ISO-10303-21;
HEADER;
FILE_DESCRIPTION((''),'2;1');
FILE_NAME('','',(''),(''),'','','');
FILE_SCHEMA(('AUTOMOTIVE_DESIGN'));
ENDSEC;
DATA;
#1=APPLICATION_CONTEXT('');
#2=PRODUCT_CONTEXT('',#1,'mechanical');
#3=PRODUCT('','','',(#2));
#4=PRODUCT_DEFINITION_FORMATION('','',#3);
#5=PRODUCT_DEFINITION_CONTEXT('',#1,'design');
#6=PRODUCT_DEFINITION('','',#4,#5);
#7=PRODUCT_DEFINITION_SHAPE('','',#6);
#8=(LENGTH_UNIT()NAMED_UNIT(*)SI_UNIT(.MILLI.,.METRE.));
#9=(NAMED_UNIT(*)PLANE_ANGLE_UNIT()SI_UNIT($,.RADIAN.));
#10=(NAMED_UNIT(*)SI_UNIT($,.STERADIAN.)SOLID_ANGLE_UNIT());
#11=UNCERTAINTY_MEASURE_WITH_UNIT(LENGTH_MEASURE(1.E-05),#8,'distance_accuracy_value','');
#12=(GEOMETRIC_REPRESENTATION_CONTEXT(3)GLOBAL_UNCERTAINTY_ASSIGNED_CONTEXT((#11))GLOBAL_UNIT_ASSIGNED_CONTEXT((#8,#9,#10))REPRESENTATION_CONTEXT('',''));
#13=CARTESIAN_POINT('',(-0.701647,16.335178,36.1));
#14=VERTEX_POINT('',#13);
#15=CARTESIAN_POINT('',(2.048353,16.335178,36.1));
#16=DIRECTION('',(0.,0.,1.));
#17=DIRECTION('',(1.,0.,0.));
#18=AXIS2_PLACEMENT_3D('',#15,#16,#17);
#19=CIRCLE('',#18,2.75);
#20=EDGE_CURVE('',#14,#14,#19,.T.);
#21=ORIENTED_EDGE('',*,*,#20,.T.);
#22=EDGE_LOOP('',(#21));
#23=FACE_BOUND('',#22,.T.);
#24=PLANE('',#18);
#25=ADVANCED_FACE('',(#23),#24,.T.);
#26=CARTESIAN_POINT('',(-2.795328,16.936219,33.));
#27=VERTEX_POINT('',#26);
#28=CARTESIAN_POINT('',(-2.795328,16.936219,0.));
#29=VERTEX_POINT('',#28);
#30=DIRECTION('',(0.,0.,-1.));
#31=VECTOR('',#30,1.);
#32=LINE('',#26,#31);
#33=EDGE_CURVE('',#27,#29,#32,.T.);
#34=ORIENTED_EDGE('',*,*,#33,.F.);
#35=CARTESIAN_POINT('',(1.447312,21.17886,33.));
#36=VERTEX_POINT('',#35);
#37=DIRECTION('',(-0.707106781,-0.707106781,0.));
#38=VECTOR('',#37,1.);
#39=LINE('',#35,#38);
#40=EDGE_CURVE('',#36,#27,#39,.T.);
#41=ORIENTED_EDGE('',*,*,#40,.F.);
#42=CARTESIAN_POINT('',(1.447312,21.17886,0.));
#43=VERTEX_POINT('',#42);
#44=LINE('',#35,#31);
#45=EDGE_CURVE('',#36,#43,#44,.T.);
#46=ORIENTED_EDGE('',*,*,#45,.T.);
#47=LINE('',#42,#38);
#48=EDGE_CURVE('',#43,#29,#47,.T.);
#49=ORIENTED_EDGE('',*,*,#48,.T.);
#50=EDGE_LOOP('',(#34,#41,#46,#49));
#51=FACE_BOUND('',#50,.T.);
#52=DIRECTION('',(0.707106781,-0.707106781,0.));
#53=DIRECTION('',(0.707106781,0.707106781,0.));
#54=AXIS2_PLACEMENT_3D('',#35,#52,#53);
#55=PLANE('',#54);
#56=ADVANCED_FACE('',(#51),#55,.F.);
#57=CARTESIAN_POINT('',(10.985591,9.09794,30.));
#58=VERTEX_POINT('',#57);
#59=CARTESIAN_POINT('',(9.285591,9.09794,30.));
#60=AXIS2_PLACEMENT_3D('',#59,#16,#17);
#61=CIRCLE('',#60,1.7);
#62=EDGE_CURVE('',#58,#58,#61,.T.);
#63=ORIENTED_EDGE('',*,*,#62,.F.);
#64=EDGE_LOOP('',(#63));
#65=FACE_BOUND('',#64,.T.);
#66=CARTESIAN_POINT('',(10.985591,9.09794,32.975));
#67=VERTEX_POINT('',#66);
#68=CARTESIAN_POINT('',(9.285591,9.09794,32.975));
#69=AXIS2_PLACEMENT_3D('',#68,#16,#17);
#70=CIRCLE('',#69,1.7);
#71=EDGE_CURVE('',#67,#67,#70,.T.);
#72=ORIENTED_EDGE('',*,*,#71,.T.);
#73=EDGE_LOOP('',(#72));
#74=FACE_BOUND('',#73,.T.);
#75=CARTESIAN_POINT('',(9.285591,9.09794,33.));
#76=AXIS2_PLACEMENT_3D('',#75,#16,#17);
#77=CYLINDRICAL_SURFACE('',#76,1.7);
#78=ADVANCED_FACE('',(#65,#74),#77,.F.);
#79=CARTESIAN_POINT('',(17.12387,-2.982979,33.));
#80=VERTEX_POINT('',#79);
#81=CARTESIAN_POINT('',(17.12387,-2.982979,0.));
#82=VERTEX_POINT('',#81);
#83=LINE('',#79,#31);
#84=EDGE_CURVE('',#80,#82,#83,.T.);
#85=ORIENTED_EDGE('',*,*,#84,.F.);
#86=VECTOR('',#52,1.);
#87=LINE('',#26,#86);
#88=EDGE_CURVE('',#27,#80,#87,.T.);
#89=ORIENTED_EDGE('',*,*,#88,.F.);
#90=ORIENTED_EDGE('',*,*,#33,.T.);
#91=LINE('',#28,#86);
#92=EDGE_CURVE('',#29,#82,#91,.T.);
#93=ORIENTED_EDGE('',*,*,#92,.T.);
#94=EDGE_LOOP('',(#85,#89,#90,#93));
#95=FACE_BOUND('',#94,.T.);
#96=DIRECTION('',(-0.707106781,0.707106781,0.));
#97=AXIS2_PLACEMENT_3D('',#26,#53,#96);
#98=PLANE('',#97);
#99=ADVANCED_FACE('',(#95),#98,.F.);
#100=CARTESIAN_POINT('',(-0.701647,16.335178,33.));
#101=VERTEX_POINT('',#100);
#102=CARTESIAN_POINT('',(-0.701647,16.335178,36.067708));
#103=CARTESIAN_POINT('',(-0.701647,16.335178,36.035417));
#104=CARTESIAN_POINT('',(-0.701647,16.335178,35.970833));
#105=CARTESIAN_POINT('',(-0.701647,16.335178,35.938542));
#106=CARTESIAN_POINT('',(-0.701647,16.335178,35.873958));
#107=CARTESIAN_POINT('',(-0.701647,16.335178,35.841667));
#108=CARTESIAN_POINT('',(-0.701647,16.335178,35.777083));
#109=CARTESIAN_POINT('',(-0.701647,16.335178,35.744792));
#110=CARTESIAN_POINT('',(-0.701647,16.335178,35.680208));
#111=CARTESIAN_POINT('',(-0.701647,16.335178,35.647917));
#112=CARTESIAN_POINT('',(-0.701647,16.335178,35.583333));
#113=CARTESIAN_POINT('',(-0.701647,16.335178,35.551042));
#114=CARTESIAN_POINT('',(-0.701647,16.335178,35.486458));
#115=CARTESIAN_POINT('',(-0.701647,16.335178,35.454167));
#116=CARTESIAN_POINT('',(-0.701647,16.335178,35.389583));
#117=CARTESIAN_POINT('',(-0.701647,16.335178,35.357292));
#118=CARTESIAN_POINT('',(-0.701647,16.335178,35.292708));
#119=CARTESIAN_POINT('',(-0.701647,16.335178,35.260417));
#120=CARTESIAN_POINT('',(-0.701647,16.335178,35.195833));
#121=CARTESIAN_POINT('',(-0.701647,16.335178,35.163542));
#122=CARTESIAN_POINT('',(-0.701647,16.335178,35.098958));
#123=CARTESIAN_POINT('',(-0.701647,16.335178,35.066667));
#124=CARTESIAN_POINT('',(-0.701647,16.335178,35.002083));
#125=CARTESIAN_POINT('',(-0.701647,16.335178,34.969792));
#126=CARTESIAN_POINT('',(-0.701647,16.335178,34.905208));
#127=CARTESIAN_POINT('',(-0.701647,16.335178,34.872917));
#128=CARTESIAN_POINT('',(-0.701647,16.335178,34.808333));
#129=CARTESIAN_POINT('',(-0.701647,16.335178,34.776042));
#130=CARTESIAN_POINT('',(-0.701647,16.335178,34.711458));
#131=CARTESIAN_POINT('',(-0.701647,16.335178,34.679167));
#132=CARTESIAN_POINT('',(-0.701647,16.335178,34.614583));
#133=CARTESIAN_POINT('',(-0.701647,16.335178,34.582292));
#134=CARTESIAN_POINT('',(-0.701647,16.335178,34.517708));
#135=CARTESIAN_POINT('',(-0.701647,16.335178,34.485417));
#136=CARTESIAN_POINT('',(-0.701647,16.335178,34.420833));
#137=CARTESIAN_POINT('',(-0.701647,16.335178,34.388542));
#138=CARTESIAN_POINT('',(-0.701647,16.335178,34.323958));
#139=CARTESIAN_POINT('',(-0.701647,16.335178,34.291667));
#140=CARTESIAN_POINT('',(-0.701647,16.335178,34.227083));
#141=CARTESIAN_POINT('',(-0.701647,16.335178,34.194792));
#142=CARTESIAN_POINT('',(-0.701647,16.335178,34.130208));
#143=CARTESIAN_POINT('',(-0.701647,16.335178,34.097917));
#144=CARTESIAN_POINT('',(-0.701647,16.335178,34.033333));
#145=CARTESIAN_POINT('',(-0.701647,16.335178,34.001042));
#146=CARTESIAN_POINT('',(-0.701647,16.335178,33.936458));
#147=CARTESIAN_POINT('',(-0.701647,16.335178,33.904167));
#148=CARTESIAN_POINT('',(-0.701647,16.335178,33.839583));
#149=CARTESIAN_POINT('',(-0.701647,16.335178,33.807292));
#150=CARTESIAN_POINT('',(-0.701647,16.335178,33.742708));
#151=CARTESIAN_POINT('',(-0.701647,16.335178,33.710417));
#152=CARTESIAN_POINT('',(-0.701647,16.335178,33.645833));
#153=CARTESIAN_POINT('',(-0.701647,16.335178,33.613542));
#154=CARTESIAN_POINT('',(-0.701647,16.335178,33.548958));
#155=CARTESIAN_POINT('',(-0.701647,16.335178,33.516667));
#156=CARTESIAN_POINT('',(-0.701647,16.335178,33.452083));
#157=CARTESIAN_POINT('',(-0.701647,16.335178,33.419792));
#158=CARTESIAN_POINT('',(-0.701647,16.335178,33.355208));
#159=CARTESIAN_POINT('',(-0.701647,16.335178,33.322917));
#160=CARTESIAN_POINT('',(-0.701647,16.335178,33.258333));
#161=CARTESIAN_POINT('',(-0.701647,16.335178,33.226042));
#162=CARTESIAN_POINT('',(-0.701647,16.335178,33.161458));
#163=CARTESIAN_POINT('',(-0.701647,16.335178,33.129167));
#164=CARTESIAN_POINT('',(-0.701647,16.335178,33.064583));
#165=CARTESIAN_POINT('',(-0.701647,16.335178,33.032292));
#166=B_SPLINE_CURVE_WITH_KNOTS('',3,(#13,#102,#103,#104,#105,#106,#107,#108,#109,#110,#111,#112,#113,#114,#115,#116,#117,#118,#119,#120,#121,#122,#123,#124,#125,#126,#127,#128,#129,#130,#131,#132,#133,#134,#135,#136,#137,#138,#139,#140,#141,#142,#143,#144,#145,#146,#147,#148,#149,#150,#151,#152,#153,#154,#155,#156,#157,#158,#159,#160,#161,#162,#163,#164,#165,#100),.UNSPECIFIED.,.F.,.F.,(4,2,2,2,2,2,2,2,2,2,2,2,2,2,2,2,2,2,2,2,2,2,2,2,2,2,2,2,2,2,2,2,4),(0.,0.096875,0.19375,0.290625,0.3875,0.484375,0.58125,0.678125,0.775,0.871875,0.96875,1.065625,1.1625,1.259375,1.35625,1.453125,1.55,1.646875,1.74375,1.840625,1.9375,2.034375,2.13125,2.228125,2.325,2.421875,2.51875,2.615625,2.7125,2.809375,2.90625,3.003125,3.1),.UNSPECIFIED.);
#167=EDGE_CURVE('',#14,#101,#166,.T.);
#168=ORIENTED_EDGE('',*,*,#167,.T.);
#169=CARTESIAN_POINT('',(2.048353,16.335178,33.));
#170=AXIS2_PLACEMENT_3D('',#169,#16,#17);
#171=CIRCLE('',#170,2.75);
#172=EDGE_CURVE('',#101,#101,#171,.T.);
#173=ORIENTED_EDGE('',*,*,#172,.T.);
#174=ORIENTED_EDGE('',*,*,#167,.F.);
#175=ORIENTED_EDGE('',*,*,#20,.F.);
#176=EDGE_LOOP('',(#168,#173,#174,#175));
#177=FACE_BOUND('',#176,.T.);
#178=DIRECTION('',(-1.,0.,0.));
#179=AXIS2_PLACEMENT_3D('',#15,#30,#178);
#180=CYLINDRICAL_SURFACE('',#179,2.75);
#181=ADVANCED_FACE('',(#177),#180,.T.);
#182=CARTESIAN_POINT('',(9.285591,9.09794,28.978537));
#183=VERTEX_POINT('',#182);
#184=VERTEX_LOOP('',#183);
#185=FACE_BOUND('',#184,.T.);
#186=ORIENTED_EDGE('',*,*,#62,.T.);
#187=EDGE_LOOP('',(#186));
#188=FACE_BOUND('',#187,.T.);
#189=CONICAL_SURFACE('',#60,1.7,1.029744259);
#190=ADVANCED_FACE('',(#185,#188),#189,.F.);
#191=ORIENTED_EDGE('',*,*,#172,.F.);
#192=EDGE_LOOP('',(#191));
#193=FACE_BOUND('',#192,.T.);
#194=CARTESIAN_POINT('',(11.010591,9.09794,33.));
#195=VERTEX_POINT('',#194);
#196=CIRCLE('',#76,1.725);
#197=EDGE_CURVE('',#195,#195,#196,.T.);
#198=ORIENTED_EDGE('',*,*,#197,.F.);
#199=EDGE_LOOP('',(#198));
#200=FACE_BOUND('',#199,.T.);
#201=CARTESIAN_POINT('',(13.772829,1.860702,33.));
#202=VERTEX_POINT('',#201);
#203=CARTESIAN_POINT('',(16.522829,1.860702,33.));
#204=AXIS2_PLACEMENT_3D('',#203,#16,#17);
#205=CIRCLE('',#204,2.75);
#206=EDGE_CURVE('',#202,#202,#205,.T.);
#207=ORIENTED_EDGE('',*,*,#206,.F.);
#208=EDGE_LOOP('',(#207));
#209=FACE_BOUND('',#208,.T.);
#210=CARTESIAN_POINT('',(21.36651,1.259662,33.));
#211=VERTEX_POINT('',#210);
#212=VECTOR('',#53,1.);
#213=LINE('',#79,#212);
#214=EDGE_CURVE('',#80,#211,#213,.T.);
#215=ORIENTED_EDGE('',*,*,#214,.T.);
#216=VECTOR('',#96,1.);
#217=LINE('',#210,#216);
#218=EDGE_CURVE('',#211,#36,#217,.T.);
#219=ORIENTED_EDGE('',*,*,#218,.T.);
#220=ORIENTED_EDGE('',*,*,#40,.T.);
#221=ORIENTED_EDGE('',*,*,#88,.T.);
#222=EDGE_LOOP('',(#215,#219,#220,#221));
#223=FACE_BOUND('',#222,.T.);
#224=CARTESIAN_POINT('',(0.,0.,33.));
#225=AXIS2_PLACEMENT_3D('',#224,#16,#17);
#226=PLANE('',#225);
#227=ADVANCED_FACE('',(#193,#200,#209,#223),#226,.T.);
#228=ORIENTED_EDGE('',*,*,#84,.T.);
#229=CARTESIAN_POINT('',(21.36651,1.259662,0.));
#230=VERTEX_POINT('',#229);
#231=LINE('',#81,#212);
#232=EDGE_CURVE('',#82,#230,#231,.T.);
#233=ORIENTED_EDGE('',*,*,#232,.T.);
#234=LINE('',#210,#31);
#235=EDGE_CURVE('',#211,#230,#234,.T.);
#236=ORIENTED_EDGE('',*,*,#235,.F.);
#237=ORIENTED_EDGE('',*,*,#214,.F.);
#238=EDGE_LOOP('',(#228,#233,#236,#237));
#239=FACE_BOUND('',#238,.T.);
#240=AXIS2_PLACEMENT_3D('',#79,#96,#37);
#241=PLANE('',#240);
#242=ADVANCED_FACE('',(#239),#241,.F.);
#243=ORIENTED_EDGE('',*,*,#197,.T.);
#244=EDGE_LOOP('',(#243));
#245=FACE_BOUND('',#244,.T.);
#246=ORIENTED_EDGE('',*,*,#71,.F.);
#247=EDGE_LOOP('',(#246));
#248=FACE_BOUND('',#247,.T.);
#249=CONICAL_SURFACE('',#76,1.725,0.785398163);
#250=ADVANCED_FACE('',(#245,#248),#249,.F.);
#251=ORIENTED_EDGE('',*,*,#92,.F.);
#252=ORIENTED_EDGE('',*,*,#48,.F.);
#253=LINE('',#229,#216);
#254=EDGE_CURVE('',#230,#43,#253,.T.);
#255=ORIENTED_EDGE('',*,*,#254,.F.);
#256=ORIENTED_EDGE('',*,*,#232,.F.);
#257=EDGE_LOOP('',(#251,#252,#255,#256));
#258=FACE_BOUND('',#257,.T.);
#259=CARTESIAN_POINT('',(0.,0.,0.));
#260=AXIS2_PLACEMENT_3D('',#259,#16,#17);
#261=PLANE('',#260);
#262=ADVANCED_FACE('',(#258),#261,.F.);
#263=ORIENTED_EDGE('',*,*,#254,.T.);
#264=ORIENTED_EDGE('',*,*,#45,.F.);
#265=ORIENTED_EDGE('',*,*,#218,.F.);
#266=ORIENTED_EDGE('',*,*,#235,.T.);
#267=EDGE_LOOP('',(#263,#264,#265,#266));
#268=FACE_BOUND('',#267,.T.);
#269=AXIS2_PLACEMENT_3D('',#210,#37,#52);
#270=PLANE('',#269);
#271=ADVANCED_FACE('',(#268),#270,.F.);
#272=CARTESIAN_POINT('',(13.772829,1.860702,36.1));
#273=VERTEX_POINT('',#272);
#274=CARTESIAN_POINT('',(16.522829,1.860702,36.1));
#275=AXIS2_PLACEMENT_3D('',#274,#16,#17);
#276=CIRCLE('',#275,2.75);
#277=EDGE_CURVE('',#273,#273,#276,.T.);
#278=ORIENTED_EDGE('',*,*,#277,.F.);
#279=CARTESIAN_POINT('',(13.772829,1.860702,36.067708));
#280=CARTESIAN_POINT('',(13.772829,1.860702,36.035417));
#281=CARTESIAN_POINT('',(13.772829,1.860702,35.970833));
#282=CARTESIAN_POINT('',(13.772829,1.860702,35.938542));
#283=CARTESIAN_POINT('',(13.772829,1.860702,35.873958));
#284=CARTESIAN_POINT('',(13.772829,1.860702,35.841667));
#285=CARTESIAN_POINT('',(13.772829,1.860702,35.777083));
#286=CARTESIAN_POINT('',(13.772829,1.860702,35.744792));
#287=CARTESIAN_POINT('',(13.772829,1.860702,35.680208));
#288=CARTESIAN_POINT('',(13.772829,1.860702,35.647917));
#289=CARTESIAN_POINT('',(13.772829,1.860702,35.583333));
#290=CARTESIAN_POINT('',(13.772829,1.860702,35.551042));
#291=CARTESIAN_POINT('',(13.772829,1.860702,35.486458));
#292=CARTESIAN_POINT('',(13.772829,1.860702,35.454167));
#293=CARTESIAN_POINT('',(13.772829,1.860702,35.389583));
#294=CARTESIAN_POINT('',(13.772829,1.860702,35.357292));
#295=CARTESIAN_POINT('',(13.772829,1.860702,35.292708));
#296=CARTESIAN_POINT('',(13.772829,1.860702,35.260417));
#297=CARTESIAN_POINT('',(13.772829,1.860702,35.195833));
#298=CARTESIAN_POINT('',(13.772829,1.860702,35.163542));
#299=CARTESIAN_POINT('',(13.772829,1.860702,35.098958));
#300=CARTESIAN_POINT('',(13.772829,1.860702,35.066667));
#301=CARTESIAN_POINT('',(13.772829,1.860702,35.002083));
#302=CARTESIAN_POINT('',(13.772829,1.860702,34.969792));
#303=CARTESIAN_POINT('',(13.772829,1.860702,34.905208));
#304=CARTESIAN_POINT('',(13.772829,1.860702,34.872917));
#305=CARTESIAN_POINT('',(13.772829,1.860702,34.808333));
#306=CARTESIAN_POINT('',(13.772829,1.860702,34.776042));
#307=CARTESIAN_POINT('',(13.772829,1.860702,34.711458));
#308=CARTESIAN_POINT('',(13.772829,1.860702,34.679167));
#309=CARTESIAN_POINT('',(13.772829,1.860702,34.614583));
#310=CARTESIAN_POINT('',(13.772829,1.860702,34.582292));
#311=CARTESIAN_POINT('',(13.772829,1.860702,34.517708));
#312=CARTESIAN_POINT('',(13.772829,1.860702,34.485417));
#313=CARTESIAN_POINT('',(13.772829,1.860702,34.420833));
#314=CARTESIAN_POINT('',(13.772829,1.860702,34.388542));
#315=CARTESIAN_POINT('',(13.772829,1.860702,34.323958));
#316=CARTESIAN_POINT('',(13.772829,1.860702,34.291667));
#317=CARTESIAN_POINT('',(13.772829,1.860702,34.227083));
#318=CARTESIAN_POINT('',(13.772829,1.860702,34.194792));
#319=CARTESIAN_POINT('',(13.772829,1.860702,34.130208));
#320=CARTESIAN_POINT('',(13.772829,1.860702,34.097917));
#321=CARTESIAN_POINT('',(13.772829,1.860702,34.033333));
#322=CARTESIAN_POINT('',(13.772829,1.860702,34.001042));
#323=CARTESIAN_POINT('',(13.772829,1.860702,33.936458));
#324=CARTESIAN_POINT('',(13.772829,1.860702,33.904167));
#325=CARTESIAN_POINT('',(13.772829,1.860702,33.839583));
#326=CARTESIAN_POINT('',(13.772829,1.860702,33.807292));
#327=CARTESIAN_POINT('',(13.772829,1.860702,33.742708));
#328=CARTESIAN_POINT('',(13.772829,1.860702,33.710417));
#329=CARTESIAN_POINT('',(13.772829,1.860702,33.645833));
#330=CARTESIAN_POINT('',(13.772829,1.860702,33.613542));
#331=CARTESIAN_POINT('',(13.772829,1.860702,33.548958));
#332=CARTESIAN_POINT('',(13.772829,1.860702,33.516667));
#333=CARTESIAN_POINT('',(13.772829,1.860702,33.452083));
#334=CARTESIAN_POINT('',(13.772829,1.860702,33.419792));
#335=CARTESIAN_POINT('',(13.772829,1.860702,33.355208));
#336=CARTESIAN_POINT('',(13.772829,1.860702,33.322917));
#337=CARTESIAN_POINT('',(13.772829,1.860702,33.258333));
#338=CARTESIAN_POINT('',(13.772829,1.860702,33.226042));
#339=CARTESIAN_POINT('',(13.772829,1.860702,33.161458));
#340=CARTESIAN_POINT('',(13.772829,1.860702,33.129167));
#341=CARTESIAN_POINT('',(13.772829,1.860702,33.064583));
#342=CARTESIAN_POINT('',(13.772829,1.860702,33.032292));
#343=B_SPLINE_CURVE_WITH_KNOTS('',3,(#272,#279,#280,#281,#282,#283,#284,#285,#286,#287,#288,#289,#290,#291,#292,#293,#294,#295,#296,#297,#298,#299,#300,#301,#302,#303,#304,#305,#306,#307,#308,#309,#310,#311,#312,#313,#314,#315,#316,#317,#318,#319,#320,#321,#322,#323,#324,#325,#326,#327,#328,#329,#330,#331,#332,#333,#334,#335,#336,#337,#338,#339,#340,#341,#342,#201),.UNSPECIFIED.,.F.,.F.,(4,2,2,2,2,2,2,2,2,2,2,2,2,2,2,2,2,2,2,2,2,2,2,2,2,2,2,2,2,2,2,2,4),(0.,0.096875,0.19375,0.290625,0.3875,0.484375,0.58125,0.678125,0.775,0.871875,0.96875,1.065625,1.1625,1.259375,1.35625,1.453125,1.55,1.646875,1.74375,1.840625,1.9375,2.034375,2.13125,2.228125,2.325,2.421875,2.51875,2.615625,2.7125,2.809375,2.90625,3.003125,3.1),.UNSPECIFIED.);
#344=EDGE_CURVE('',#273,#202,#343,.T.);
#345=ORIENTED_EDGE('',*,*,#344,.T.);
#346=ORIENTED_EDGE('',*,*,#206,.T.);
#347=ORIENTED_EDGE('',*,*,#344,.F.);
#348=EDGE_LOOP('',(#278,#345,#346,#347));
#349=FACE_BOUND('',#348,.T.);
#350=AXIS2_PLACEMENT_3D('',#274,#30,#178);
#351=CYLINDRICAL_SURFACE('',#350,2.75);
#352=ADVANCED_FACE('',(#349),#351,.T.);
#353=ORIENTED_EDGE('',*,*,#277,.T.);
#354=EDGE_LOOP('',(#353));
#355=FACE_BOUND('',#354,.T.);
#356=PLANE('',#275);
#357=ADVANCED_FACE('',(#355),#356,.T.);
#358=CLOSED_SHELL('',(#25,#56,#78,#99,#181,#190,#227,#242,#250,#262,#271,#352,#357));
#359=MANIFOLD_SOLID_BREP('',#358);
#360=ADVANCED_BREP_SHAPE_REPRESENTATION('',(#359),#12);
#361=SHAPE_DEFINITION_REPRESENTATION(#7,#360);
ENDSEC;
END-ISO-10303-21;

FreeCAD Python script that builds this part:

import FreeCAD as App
import Part
import Sketcher

V = App.Vector
Q = App.Units.Quantity


def add_polygon(sketch, points):
    """Adds a closed chain of lines whose ends are joined by coincident constraints."""
    first, n = sketch.GeometryCount, len(points)
    for a, b in zip(points, points[1:] + points[:1]):
        sketch.addGeometry(Part.LineSegment(App.Vector(*a, 0), App.Vector(*b, 0)), False)
    for i in range(n):
        sketch.addConstraint(Sketcher.Constraint("Coincident", first + i, 2, first + (i + 1) % n, 1))

doc = App.newDocument("Part")
body = doc.addObject("PartDesign::Body", "Body")

sketch1 = body.newObject("Sketcher::SketchObject", "Sketch")
sketch1.AttachmentSupport = (doc.getObject("XY_Plane"), [""])
sketch1.MapMode = "FlatFace"
add_polygon(sketch1, [(17, -3), (21, 1), (1, 21), (-3, 17)])
sketch1.addConstraint([
    Sketcher.Constraint("Perpendicular", 0, 1),
    Sketcher.Constraint("Perpendicular", 1, 2),
    Sketcher.Constraint("Perpendicular", 2, 3),
    Sketcher.Constraint("Angle", 0, Q("45 deg")),
    Sketcher.Constraint("Distance", 0, 6.0),
    Sketcher.Constraint("Distance", 1, 28.17),
    Sketcher.Constraint("DistanceX", -1, 1, 0, 2, 21.36651),
    Sketcher.Constraint("DistanceY", -1, 1, 0, 2, 1.259662),
])
pad1 = body.newObject("PartDesign::Pad", "Pad")
pad1.Profile = sketch1
pad1.Length = 33

sketch2 = body.newObject("Sketcher::SketchObject", "Sketch001")
sketch2.AttachmentSupport = (doc.getObject("XY_Plane"), [""])
sketch2.MapMode = "FlatFace"
sketch2.AttachmentOffset = App.Placement(V(0, 0, 33), App.Rotation())
sketch2.addGeometry([
    Part.Circle(V(2, 16.3, 0), V(0, 0, 1), 2.8),
    Part.Circle(V(16.5, 1.9, 0), V(0, 0, 1), 2.8),
], False)
sketch2.addConstraint([
    Sketcher.Constraint("Equal", 0, 1),
    Sketcher.Constraint("Diameter", 0, 5.5),
    Sketcher.Constraint("DistanceY", -1, 1, 0, 3, 16.335178),
    Sketcher.Constraint("DistanceX", -1, 1, 1, 3, 16.522829),
    Sketcher.Constraint("DistanceX", -1, 1, 0, 3, 2.048353),
    Sketcher.Constraint("DistanceY", -1, 1, 1, 3, 1.860702),
])
pad2 = body.newObject("PartDesign::Pad", "Pad001")
pad2.Profile = sketch2
pad2.Length = 3.1

sketch3 = body.newObject("Sketcher::SketchObject", "Sketch002")
sketch3.AttachmentSupport = (doc.getObject("XY_Plane"), [""])
sketch3.MapMode = "FlatFace"
sketch3.AttachmentOffset = App.Placement(V(0, 0, 33), App.Rotation())
sketch3.addGeometry(Part.Circle(V(9.3, 9.1, 0), V(0, 0, 1), 1.7), False)
sketch3.addConstraint([
    Sketcher.Constraint("Diameter", 0, 3.4),
    Sketcher.Constraint("DistanceX", -1, 1, 0, 3, 9.285591),
    Sketcher.Constraint("DistanceY", -1, 1, 0, 3, 9.09794),
])
doc.recompute()
hole = body.newObject("PartDesign::Hole", "Hole")
hole.Profile = sketch3
hole.ThreadType = "None"
hole.Diameter = 3.4
hole.DepthType = "Dimension"
hole.Depth = 3
hole.DrillPoint = "Angled"
hole.DrillPointAngle = 118
hole.HoleCutType = "Countersink"
hole.HoleCutDiameter = 3.45
hole.HoleCutCountersinkAngle = 90

doc.recompute()
